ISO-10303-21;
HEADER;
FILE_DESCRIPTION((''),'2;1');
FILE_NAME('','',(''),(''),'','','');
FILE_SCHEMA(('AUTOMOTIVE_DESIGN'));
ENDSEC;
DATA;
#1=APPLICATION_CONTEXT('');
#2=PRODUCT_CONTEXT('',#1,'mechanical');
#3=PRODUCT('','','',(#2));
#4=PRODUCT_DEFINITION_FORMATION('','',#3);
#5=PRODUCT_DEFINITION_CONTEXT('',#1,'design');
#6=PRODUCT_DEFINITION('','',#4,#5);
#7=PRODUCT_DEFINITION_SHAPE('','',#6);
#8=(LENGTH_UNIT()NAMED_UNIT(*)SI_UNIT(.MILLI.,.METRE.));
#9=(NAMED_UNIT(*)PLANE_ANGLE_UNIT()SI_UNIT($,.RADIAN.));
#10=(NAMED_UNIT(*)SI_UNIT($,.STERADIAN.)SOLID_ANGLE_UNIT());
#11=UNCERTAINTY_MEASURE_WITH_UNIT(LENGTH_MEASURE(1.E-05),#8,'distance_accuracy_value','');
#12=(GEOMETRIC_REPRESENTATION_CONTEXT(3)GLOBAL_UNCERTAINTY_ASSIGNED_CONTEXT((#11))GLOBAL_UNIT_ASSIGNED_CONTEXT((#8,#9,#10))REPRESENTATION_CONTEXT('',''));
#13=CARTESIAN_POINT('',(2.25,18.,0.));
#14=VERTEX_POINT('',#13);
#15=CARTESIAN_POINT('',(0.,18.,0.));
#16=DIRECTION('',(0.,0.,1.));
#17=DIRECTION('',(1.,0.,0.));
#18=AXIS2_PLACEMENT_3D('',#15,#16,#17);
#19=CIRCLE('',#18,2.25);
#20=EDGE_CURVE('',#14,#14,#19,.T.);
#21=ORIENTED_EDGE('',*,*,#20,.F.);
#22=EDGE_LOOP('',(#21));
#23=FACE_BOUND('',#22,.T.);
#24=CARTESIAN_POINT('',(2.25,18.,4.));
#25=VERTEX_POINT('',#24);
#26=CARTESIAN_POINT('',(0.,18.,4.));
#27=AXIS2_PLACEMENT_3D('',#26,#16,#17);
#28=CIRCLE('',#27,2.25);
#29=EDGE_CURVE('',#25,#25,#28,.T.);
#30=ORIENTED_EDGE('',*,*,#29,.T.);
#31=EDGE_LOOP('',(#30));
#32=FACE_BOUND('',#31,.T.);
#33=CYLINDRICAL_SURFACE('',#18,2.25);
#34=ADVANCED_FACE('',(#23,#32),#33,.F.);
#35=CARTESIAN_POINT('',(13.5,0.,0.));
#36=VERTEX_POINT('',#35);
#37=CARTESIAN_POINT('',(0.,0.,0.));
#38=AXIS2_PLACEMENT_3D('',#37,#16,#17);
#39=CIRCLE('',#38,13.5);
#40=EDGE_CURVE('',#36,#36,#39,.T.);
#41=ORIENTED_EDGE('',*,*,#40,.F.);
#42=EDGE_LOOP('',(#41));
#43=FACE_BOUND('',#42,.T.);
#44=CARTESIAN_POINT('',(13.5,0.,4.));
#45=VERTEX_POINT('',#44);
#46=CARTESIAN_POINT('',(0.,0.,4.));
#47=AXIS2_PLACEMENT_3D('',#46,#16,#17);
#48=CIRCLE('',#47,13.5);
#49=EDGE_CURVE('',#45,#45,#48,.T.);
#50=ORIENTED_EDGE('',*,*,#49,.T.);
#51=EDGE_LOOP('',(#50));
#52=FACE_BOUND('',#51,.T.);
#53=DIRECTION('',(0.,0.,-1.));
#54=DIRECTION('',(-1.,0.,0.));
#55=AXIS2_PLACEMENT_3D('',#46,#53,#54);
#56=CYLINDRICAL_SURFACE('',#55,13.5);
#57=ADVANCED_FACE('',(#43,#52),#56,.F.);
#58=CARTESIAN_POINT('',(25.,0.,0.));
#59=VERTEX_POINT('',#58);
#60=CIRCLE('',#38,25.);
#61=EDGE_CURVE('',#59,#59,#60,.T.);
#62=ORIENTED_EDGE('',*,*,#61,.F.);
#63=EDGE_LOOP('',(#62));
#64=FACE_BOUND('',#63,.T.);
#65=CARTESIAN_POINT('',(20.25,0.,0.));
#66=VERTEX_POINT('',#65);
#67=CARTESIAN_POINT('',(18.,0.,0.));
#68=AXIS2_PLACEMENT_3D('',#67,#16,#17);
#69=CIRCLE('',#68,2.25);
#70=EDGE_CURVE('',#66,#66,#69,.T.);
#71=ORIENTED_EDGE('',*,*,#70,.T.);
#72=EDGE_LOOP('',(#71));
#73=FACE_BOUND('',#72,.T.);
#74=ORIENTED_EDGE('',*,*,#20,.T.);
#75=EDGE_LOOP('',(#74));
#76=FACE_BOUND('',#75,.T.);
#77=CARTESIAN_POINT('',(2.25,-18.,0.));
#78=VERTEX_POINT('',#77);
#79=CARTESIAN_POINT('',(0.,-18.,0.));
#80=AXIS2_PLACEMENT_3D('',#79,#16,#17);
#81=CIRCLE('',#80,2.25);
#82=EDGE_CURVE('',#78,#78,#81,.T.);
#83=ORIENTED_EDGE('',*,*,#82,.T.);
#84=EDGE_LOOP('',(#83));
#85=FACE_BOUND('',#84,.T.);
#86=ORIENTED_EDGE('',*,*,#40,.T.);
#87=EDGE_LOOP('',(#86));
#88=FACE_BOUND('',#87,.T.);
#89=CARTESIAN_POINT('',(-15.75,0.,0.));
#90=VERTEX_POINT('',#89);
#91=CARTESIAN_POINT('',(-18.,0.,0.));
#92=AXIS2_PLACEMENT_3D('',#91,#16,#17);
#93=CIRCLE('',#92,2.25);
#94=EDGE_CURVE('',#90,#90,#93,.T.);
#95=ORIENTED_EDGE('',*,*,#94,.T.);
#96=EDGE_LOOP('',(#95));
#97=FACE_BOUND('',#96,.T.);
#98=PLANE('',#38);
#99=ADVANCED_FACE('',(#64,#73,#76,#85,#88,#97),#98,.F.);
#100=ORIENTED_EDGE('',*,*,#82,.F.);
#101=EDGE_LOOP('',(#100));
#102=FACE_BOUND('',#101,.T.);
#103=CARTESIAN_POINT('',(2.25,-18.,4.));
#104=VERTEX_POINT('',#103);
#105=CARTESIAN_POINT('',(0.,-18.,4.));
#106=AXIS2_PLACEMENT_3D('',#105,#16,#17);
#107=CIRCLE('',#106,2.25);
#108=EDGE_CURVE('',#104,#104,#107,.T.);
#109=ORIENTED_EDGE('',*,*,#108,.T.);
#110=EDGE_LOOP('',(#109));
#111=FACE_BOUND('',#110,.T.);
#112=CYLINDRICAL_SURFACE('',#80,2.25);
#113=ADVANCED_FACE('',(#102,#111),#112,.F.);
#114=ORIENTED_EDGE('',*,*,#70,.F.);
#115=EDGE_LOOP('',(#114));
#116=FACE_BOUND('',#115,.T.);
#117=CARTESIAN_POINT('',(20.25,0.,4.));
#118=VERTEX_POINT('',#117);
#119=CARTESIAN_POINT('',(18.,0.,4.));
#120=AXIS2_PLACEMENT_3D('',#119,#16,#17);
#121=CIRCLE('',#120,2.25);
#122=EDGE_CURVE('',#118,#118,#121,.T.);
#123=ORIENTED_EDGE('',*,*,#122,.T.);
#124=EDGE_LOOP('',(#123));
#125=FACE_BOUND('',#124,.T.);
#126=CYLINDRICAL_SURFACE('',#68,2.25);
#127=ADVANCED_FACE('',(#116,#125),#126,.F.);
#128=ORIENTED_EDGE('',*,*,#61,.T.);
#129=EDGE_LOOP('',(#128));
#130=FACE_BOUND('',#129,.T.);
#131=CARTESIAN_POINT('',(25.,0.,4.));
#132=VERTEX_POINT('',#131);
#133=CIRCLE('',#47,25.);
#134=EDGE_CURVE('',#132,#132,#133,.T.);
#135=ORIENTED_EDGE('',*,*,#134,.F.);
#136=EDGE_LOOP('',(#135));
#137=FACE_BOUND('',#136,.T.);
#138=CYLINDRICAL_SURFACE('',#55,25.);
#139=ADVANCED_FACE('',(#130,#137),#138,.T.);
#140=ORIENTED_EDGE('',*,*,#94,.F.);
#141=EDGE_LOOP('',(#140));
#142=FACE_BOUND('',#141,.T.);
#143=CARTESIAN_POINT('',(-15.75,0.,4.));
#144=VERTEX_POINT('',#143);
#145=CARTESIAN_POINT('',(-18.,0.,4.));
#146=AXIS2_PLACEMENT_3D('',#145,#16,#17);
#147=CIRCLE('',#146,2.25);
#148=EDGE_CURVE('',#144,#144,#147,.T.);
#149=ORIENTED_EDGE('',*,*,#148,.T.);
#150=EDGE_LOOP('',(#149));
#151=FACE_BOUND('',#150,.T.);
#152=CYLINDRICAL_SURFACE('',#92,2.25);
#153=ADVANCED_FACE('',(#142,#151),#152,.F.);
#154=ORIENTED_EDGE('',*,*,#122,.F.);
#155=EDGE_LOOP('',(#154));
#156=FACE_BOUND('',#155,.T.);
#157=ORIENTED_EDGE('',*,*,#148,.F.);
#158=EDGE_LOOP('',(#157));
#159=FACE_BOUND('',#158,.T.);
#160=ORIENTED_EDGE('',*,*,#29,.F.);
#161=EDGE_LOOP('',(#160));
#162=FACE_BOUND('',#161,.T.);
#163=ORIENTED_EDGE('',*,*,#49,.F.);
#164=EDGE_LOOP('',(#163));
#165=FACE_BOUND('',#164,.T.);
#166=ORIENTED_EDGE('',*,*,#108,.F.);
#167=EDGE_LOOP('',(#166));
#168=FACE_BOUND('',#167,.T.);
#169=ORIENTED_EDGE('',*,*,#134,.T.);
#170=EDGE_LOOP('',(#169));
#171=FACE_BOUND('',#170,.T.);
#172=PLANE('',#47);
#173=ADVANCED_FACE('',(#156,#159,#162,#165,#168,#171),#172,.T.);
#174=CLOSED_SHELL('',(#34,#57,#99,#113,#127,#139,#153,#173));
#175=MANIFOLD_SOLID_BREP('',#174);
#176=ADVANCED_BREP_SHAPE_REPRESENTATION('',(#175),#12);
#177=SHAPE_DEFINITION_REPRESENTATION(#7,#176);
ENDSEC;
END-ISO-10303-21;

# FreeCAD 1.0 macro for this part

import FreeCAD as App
import Part
import Sketcher

doc = App.newDocument("Part")
body = doc.addObject("PartDesign::Body", "Body")

sketch1 = body.newObject("Sketcher::SketchObject", "Sketch")
sketch1.AttachmentSupport = (doc.getObject("XY_Plane"), [""])
sketch1.MapMode = "FlatFace"
sketch1.addGeometry(Part.Circle(App.Vector(0, 0, 0), App.Vector(0, 0, 1), 25), False)
sketch1.addGeometry(Part.Circle(App.Vector(0, 0, 0), App.Vector(0, 0, 1), 14), False)
sketch1.addConstraint(Sketcher.Constraint("Coincident", 0, 3, -1, 1))
sketch1.addConstraint(Sketcher.Constraint("Coincident", 1, 3, -1, 1))
sketch1.addConstraint(Sketcher.Constraint("Diameter", 0, 50.0))
sketch1.addConstraint(Sketcher.Constraint("Diameter", 1, 27.0))
pad1 = body.newObject("PartDesign::Pad", "Pad")
pad1.Profile = sketch1
pad1.Length = 4

sketch2 = body.newObject("Sketcher::SketchObject", "Sketch001")
sketch2.AttachmentSupport = (doc.getObject("XY_Plane"), [""])
sketch2.MapMode = "FlatFace"
sketch2.AttachmentOffset = App.Placement(App.Vector(0, 0, 4), App.Rotation())
sketch2.addGeometry(Part.Circle(App.Vector(0, 18, 0), App.Vector(0, 0, 1), 2.2), False)
sketch2.addGeometry(Part.Circle(App.Vector(18, 0, 0), App.Vector(0, 0, 1), 2.2), False)
sketch2.addGeometry(Part.Circle(App.Vector(0, -18, 0), App.Vector(0, 0, 1), 2.2), False)
sketch2.addGeometry(Part.Circle(App.Vector(-18, 0, 0), App.Vector(0, 0, 1), 2.2), False)
sketch2.addConstraint(Sketcher.Constraint("Equal", 0, 1))
sketch2.addConstraint(Sketcher.Constraint("Equal", 1, 2))
sketch2.addConstraint(Sketcher.Constraint("Equal", 2, 3))
sketch2.addConstraint(Sketcher.Constraint("Symmetric", 0, 3, 2, 3, -1, 1))
sketch2.addConstraint(Sketcher.Constraint("Symmetric", 1, 3, 3, 3, -1, 1))
sketch2.addConstraint(Sketcher.Constraint("PointOnObject", 0, 3, -2))
sketch2.addConstraint(Sketcher.Constraint("PointOnObject", 1, 3, -1))
sketch2.addConstraint(Sketcher.Constraint("Diameter", 0, 4.5))
sketch2.addConstraint(Sketcher.Constraint("DistanceY", -1, 1, 0, 3, 18.0))
sketch2.addConstraint(Sketcher.Constraint("DistanceX", -1, 1, 1, 3, 18.0))
pocket1 = body.newObject("PartDesign::Pocket", "Pocket")
pocket1.Profile = sketch2
pocket1.Type = "ThroughAll"

doc.recompute()
